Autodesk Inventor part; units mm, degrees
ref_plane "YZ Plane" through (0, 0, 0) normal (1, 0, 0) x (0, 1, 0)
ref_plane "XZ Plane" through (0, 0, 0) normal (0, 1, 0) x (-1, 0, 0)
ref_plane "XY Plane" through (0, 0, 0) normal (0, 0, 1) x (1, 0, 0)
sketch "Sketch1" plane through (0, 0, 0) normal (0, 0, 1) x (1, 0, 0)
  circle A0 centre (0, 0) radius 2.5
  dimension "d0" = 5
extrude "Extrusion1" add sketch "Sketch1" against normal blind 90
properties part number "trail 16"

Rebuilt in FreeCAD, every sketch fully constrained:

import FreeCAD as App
import Part
import Sketcher
from FreeCAD import Vector

doc = App.newDocument("Part")
body = doc.addObject("PartDesign::Body", "Body")

sketch1 = body.newObject("Sketcher::SketchObject", "Sketch")
sketch1.AttachmentSupport = (doc.getObject("XY_Plane"), [""])
sketch1.MapMode = "FlatFace"
sketch1.addGeometry(Part.Circle(Vector(0, 0, 0), Vector(0, 0, 1), 2.5), False)
sketch1.addConstraint([
    Sketcher.Constraint("Coincident", 0, 3, -1, 1),
    Sketcher.Constraint("Diameter", 0, 5.0),
])
pad1 = body.newObject("PartDesign::Pad", "Pad")
pad1.Profile = sketch1
pad1.Length = 90
pad1.Reversed = True

doc.recompute()
